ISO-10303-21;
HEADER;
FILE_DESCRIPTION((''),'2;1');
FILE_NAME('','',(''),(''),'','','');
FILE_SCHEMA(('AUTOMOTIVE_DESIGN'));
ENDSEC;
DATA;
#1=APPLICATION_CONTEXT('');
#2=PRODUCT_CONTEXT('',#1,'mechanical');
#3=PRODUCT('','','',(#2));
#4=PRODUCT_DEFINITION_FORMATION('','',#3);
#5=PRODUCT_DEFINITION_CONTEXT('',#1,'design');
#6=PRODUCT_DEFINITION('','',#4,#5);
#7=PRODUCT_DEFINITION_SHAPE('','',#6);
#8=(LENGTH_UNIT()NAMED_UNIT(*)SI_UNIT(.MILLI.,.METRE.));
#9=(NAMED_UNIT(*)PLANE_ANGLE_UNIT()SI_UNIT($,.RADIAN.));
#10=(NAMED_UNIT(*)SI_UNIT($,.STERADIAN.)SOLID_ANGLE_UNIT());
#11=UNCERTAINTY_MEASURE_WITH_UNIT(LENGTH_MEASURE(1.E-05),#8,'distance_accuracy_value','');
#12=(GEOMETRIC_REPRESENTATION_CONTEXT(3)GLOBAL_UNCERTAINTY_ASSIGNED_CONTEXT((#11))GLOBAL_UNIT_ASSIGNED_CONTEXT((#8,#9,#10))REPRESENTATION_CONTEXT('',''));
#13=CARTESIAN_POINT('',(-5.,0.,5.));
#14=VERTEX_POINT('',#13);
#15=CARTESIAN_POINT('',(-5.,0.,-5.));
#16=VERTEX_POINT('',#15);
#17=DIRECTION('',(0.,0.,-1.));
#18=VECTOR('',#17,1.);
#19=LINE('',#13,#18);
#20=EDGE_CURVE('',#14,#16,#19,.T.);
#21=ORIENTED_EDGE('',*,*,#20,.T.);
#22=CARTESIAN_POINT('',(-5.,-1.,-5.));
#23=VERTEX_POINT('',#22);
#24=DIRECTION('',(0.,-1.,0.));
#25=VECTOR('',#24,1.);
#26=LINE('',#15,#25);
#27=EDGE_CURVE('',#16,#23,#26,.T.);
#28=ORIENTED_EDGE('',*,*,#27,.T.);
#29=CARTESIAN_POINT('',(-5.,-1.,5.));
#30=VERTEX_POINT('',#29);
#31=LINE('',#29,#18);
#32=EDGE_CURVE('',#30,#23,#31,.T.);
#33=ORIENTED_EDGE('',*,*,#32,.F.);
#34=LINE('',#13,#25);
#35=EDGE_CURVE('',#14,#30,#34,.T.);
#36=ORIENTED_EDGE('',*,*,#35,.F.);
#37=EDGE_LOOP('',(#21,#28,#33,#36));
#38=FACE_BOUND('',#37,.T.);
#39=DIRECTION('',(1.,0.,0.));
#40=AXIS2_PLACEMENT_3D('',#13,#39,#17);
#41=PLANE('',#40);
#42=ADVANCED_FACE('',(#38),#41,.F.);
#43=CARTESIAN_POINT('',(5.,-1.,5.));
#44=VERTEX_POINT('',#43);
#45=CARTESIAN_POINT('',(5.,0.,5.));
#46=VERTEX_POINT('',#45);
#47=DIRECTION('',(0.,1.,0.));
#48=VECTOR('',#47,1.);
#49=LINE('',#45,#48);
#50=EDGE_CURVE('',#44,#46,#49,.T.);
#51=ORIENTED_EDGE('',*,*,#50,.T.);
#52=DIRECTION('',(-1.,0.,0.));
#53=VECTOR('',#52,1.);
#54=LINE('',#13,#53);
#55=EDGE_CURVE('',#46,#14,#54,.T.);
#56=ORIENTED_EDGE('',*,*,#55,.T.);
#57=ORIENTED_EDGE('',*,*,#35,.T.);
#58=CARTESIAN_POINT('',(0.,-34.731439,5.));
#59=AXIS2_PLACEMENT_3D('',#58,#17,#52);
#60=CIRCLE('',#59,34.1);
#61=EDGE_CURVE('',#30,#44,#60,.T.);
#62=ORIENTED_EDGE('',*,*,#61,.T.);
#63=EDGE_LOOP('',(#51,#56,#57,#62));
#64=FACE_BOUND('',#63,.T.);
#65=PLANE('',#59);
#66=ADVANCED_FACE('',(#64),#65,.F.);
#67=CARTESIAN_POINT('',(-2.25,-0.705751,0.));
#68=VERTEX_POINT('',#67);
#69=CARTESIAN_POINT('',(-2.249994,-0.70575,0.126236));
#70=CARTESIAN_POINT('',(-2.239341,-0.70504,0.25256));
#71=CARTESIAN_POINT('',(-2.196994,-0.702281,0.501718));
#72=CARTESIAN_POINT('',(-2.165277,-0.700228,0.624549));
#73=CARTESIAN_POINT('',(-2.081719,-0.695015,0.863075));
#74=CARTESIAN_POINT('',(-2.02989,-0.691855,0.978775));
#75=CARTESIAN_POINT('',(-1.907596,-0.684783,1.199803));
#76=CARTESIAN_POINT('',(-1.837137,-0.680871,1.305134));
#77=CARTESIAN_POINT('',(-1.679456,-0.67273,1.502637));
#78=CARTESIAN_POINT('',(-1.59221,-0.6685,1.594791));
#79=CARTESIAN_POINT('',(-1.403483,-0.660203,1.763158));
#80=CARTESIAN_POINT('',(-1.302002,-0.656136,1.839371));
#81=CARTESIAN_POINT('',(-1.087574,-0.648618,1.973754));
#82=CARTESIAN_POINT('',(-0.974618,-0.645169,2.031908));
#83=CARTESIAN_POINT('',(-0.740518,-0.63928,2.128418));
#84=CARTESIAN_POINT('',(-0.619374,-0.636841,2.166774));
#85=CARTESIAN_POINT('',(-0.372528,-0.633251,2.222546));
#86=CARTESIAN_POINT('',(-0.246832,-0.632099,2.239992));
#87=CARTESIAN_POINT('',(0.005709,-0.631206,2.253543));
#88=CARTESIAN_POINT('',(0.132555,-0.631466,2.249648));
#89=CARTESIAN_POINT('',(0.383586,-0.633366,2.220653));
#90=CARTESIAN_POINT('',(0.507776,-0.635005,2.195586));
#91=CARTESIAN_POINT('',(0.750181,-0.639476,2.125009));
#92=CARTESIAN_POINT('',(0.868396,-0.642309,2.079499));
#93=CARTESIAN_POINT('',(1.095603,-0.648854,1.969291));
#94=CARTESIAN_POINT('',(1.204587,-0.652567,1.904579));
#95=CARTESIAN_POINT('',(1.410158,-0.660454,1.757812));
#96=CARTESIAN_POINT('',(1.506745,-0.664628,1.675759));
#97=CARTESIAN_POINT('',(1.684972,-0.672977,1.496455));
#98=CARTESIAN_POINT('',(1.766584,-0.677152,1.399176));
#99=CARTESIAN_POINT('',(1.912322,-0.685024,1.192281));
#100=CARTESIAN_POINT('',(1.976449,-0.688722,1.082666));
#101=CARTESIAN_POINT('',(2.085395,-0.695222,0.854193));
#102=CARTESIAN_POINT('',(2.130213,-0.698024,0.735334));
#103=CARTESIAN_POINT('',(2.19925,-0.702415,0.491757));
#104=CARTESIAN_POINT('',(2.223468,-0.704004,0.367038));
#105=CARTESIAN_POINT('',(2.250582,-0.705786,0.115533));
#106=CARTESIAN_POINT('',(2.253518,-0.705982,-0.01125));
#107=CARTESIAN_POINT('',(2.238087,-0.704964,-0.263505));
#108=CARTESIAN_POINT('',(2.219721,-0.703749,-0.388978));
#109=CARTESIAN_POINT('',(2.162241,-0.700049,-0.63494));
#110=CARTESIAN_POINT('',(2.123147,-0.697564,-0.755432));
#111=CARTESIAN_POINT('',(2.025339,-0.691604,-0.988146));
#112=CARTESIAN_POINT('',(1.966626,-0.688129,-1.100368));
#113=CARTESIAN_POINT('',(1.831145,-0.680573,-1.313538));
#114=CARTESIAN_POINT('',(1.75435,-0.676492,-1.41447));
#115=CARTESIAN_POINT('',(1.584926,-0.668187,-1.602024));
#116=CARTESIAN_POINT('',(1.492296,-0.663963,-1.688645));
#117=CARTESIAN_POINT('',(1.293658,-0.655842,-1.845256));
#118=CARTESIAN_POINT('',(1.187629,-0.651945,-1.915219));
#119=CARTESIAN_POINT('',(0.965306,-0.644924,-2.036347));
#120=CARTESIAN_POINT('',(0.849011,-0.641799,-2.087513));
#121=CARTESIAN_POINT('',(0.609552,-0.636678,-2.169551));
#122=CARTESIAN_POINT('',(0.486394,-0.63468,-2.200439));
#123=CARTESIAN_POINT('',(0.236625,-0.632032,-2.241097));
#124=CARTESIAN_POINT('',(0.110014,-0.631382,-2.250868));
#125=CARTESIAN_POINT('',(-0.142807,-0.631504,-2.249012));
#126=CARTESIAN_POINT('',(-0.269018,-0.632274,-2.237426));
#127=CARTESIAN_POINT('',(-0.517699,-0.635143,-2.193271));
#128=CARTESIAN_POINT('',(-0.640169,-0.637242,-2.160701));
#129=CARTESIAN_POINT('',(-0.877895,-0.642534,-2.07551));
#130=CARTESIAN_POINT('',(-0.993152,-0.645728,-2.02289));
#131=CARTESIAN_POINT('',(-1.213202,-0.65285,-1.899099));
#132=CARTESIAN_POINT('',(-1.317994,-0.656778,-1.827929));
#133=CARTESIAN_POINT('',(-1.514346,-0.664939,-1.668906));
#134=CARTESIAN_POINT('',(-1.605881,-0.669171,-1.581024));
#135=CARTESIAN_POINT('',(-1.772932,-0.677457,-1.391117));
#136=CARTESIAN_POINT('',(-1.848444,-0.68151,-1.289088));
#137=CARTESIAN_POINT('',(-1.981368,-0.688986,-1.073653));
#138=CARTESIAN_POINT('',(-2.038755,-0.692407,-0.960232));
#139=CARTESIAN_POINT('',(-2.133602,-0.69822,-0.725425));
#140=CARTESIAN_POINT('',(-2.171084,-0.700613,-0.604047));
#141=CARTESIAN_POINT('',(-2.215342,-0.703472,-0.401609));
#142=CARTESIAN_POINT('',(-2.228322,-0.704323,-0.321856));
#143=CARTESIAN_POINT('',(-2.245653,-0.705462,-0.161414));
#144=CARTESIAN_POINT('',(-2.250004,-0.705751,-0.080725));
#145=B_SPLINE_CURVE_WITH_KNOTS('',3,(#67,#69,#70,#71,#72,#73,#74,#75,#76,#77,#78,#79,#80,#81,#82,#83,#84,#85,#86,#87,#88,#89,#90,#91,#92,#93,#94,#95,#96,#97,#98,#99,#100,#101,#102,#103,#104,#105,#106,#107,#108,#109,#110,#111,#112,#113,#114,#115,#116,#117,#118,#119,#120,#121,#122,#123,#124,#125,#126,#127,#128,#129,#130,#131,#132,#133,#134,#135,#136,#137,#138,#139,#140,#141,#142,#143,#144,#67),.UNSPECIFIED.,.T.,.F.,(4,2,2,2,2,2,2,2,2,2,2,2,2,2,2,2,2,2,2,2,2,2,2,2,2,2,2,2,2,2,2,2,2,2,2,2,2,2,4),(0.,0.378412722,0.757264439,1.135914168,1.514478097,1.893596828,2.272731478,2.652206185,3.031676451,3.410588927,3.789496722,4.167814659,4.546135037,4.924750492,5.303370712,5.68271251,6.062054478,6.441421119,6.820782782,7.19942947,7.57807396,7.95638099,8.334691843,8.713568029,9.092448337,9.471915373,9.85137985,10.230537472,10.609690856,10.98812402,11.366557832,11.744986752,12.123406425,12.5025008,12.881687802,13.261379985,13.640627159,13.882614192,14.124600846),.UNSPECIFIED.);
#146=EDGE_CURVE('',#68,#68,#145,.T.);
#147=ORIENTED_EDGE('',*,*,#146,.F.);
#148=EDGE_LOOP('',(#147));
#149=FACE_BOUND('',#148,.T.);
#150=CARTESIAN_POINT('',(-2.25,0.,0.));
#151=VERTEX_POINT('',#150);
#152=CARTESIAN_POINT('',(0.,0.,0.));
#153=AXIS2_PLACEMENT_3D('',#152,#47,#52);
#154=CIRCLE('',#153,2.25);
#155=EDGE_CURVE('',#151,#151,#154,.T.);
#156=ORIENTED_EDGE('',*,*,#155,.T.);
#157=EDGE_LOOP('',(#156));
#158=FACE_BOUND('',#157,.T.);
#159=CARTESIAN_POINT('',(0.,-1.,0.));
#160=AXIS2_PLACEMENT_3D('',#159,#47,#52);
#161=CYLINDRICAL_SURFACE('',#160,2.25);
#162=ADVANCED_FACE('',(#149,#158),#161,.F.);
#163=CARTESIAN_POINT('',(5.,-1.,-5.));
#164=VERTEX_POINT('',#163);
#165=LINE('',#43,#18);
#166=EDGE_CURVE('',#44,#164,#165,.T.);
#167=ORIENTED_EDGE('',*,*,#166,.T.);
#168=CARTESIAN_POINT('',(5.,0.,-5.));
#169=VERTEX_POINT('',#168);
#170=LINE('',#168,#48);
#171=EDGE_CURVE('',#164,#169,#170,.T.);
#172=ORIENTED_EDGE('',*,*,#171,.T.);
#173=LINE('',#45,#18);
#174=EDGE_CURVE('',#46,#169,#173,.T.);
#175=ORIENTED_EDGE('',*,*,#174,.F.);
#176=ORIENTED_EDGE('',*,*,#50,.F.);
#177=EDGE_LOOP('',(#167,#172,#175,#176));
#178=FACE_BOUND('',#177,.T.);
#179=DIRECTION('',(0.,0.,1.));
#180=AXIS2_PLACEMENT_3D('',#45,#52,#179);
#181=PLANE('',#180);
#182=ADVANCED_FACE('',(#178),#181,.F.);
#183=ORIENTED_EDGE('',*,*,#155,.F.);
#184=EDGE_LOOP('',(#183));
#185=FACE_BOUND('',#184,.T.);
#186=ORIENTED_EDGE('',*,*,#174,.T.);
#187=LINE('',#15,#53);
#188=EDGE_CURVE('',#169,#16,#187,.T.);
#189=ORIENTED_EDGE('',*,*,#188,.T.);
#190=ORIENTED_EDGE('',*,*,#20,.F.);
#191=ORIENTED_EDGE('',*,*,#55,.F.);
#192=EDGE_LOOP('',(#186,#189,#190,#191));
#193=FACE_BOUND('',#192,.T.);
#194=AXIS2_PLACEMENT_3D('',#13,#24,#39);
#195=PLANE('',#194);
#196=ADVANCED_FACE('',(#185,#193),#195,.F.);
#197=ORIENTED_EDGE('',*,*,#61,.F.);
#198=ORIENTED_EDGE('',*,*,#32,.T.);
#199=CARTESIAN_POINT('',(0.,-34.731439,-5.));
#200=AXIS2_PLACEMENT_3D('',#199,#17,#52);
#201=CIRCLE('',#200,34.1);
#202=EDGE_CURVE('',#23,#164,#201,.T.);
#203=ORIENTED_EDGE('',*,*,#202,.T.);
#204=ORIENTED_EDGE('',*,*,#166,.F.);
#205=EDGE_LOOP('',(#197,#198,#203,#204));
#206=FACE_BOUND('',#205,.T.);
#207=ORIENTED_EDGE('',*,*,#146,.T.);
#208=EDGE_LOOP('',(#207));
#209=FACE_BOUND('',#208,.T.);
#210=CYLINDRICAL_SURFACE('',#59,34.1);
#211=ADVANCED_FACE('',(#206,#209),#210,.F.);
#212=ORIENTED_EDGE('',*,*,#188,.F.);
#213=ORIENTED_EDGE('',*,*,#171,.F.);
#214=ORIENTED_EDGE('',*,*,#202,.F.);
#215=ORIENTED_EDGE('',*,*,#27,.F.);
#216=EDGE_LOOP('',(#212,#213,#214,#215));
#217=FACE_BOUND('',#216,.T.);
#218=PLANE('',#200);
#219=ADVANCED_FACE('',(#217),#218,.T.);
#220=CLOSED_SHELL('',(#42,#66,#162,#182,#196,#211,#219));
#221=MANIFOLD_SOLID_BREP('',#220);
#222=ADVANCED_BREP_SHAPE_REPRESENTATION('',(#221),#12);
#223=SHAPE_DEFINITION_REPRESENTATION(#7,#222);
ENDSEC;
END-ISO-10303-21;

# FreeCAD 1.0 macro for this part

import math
import FreeCAD as App
import Part
import Sketcher
Q = App.Units.Quantity

doc = App.newDocument("Part")
body = doc.addObject("PartDesign::Body", "Body")

sketch1 = doc.addObject("Sketcher::SketchObject", "Sketch")
body.addObject(sketch1)
sketch1.AttachmentSupport = (doc.XY_Plane, [""])
sketch1.MapMode = "FlatFace"
sketch1.addGeometry(Part.LineSegment(App.Vector(5, 0, 0), App.Vector(-5, 0, 0)), False)
sketch1.addGeometry(Part.LineSegment(App.Vector(-5, 0, 0), App.Vector(-5, -1, 0)), False)
sketch1.addGeometry(Part.ArcOfCircle(Part.Circle(App.Vector(0, -34.7, 0), App.Vector(0, 0, 1), 34.1), math.radians(81.57), math.radians(98.43)), False)
sketch1.addGeometry(Part.LineSegment(App.Vector(5, -1, 0), App.Vector(5, 0, 0)), False)
sketch1.addConstraint(Sketcher.Constraint("Coincident", 0, 2, 1, 1))
sketch1.addConstraint(Sketcher.Constraint("Coincident", 1, 2, 2, 2))
sketch1.addConstraint(Sketcher.Constraint("Coincident", 2, 1, 3, 1))
sketch1.addConstraint(Sketcher.Constraint("Coincident", 3, 2, 0, 1))
sketch1.addConstraint(Sketcher.Constraint("Horizontal", 0))
sketch1.addConstraint(Sketcher.Constraint("Vertical", 1))
sketch1.addConstraint(Sketcher.Constraint("Vertical", 3))
sketch1.addConstraint(Sketcher.Constraint("Symmetric", 0, 2, 3, 2, -1, 1))
sketch1.addConstraint(Sketcher.Constraint("PointOnObject", 2, 3, -2))
sketch1.addConstraint(Sketcher.Constraint("Radius", 2, Q("34.1 mm")))
sketch1.addConstraint(Sketcher.Constraint("DistanceX", 0, 2, 0, 1, Q("10 mm")))
sketch1.addConstraint(Sketcher.Constraint("DistanceY", 1, 2, 1, 1, Q("1 mm")))
pad1 = doc.addObject("PartDesign::Pad", "Pad")
body.addObject(pad1)
pad1.Profile = sketch1
pad1.Length = 10
pad1.Midplane = True

sketch2 = doc.addObject("Sketcher::SketchObject", "Sketch001")
body.addObject(sketch2)
sketch2.AttachmentSupport = (doc.XZ_Plane, [""])
sketch2.MapMode = "FlatFace"
sketch2.addGeometry(Part.Circle(App.Vector(0, 0, 0), App.Vector(0, 0, 1), 2.2), False)
sketch2.addConstraint(Sketcher.Constraint("Coincident", 0, 3, -1, 1))
sketch2.addConstraint(Sketcher.Constraint("Diameter", 0, Q("4.5 mm")))
pocket1 = doc.addObject("PartDesign::Pocket", "Pocket")
body.addObject(pocket1)
pocket1.Profile = sketch2
pocket1.Type = "ThroughAll"
pocket1.Reversed = True

doc.recompute()
